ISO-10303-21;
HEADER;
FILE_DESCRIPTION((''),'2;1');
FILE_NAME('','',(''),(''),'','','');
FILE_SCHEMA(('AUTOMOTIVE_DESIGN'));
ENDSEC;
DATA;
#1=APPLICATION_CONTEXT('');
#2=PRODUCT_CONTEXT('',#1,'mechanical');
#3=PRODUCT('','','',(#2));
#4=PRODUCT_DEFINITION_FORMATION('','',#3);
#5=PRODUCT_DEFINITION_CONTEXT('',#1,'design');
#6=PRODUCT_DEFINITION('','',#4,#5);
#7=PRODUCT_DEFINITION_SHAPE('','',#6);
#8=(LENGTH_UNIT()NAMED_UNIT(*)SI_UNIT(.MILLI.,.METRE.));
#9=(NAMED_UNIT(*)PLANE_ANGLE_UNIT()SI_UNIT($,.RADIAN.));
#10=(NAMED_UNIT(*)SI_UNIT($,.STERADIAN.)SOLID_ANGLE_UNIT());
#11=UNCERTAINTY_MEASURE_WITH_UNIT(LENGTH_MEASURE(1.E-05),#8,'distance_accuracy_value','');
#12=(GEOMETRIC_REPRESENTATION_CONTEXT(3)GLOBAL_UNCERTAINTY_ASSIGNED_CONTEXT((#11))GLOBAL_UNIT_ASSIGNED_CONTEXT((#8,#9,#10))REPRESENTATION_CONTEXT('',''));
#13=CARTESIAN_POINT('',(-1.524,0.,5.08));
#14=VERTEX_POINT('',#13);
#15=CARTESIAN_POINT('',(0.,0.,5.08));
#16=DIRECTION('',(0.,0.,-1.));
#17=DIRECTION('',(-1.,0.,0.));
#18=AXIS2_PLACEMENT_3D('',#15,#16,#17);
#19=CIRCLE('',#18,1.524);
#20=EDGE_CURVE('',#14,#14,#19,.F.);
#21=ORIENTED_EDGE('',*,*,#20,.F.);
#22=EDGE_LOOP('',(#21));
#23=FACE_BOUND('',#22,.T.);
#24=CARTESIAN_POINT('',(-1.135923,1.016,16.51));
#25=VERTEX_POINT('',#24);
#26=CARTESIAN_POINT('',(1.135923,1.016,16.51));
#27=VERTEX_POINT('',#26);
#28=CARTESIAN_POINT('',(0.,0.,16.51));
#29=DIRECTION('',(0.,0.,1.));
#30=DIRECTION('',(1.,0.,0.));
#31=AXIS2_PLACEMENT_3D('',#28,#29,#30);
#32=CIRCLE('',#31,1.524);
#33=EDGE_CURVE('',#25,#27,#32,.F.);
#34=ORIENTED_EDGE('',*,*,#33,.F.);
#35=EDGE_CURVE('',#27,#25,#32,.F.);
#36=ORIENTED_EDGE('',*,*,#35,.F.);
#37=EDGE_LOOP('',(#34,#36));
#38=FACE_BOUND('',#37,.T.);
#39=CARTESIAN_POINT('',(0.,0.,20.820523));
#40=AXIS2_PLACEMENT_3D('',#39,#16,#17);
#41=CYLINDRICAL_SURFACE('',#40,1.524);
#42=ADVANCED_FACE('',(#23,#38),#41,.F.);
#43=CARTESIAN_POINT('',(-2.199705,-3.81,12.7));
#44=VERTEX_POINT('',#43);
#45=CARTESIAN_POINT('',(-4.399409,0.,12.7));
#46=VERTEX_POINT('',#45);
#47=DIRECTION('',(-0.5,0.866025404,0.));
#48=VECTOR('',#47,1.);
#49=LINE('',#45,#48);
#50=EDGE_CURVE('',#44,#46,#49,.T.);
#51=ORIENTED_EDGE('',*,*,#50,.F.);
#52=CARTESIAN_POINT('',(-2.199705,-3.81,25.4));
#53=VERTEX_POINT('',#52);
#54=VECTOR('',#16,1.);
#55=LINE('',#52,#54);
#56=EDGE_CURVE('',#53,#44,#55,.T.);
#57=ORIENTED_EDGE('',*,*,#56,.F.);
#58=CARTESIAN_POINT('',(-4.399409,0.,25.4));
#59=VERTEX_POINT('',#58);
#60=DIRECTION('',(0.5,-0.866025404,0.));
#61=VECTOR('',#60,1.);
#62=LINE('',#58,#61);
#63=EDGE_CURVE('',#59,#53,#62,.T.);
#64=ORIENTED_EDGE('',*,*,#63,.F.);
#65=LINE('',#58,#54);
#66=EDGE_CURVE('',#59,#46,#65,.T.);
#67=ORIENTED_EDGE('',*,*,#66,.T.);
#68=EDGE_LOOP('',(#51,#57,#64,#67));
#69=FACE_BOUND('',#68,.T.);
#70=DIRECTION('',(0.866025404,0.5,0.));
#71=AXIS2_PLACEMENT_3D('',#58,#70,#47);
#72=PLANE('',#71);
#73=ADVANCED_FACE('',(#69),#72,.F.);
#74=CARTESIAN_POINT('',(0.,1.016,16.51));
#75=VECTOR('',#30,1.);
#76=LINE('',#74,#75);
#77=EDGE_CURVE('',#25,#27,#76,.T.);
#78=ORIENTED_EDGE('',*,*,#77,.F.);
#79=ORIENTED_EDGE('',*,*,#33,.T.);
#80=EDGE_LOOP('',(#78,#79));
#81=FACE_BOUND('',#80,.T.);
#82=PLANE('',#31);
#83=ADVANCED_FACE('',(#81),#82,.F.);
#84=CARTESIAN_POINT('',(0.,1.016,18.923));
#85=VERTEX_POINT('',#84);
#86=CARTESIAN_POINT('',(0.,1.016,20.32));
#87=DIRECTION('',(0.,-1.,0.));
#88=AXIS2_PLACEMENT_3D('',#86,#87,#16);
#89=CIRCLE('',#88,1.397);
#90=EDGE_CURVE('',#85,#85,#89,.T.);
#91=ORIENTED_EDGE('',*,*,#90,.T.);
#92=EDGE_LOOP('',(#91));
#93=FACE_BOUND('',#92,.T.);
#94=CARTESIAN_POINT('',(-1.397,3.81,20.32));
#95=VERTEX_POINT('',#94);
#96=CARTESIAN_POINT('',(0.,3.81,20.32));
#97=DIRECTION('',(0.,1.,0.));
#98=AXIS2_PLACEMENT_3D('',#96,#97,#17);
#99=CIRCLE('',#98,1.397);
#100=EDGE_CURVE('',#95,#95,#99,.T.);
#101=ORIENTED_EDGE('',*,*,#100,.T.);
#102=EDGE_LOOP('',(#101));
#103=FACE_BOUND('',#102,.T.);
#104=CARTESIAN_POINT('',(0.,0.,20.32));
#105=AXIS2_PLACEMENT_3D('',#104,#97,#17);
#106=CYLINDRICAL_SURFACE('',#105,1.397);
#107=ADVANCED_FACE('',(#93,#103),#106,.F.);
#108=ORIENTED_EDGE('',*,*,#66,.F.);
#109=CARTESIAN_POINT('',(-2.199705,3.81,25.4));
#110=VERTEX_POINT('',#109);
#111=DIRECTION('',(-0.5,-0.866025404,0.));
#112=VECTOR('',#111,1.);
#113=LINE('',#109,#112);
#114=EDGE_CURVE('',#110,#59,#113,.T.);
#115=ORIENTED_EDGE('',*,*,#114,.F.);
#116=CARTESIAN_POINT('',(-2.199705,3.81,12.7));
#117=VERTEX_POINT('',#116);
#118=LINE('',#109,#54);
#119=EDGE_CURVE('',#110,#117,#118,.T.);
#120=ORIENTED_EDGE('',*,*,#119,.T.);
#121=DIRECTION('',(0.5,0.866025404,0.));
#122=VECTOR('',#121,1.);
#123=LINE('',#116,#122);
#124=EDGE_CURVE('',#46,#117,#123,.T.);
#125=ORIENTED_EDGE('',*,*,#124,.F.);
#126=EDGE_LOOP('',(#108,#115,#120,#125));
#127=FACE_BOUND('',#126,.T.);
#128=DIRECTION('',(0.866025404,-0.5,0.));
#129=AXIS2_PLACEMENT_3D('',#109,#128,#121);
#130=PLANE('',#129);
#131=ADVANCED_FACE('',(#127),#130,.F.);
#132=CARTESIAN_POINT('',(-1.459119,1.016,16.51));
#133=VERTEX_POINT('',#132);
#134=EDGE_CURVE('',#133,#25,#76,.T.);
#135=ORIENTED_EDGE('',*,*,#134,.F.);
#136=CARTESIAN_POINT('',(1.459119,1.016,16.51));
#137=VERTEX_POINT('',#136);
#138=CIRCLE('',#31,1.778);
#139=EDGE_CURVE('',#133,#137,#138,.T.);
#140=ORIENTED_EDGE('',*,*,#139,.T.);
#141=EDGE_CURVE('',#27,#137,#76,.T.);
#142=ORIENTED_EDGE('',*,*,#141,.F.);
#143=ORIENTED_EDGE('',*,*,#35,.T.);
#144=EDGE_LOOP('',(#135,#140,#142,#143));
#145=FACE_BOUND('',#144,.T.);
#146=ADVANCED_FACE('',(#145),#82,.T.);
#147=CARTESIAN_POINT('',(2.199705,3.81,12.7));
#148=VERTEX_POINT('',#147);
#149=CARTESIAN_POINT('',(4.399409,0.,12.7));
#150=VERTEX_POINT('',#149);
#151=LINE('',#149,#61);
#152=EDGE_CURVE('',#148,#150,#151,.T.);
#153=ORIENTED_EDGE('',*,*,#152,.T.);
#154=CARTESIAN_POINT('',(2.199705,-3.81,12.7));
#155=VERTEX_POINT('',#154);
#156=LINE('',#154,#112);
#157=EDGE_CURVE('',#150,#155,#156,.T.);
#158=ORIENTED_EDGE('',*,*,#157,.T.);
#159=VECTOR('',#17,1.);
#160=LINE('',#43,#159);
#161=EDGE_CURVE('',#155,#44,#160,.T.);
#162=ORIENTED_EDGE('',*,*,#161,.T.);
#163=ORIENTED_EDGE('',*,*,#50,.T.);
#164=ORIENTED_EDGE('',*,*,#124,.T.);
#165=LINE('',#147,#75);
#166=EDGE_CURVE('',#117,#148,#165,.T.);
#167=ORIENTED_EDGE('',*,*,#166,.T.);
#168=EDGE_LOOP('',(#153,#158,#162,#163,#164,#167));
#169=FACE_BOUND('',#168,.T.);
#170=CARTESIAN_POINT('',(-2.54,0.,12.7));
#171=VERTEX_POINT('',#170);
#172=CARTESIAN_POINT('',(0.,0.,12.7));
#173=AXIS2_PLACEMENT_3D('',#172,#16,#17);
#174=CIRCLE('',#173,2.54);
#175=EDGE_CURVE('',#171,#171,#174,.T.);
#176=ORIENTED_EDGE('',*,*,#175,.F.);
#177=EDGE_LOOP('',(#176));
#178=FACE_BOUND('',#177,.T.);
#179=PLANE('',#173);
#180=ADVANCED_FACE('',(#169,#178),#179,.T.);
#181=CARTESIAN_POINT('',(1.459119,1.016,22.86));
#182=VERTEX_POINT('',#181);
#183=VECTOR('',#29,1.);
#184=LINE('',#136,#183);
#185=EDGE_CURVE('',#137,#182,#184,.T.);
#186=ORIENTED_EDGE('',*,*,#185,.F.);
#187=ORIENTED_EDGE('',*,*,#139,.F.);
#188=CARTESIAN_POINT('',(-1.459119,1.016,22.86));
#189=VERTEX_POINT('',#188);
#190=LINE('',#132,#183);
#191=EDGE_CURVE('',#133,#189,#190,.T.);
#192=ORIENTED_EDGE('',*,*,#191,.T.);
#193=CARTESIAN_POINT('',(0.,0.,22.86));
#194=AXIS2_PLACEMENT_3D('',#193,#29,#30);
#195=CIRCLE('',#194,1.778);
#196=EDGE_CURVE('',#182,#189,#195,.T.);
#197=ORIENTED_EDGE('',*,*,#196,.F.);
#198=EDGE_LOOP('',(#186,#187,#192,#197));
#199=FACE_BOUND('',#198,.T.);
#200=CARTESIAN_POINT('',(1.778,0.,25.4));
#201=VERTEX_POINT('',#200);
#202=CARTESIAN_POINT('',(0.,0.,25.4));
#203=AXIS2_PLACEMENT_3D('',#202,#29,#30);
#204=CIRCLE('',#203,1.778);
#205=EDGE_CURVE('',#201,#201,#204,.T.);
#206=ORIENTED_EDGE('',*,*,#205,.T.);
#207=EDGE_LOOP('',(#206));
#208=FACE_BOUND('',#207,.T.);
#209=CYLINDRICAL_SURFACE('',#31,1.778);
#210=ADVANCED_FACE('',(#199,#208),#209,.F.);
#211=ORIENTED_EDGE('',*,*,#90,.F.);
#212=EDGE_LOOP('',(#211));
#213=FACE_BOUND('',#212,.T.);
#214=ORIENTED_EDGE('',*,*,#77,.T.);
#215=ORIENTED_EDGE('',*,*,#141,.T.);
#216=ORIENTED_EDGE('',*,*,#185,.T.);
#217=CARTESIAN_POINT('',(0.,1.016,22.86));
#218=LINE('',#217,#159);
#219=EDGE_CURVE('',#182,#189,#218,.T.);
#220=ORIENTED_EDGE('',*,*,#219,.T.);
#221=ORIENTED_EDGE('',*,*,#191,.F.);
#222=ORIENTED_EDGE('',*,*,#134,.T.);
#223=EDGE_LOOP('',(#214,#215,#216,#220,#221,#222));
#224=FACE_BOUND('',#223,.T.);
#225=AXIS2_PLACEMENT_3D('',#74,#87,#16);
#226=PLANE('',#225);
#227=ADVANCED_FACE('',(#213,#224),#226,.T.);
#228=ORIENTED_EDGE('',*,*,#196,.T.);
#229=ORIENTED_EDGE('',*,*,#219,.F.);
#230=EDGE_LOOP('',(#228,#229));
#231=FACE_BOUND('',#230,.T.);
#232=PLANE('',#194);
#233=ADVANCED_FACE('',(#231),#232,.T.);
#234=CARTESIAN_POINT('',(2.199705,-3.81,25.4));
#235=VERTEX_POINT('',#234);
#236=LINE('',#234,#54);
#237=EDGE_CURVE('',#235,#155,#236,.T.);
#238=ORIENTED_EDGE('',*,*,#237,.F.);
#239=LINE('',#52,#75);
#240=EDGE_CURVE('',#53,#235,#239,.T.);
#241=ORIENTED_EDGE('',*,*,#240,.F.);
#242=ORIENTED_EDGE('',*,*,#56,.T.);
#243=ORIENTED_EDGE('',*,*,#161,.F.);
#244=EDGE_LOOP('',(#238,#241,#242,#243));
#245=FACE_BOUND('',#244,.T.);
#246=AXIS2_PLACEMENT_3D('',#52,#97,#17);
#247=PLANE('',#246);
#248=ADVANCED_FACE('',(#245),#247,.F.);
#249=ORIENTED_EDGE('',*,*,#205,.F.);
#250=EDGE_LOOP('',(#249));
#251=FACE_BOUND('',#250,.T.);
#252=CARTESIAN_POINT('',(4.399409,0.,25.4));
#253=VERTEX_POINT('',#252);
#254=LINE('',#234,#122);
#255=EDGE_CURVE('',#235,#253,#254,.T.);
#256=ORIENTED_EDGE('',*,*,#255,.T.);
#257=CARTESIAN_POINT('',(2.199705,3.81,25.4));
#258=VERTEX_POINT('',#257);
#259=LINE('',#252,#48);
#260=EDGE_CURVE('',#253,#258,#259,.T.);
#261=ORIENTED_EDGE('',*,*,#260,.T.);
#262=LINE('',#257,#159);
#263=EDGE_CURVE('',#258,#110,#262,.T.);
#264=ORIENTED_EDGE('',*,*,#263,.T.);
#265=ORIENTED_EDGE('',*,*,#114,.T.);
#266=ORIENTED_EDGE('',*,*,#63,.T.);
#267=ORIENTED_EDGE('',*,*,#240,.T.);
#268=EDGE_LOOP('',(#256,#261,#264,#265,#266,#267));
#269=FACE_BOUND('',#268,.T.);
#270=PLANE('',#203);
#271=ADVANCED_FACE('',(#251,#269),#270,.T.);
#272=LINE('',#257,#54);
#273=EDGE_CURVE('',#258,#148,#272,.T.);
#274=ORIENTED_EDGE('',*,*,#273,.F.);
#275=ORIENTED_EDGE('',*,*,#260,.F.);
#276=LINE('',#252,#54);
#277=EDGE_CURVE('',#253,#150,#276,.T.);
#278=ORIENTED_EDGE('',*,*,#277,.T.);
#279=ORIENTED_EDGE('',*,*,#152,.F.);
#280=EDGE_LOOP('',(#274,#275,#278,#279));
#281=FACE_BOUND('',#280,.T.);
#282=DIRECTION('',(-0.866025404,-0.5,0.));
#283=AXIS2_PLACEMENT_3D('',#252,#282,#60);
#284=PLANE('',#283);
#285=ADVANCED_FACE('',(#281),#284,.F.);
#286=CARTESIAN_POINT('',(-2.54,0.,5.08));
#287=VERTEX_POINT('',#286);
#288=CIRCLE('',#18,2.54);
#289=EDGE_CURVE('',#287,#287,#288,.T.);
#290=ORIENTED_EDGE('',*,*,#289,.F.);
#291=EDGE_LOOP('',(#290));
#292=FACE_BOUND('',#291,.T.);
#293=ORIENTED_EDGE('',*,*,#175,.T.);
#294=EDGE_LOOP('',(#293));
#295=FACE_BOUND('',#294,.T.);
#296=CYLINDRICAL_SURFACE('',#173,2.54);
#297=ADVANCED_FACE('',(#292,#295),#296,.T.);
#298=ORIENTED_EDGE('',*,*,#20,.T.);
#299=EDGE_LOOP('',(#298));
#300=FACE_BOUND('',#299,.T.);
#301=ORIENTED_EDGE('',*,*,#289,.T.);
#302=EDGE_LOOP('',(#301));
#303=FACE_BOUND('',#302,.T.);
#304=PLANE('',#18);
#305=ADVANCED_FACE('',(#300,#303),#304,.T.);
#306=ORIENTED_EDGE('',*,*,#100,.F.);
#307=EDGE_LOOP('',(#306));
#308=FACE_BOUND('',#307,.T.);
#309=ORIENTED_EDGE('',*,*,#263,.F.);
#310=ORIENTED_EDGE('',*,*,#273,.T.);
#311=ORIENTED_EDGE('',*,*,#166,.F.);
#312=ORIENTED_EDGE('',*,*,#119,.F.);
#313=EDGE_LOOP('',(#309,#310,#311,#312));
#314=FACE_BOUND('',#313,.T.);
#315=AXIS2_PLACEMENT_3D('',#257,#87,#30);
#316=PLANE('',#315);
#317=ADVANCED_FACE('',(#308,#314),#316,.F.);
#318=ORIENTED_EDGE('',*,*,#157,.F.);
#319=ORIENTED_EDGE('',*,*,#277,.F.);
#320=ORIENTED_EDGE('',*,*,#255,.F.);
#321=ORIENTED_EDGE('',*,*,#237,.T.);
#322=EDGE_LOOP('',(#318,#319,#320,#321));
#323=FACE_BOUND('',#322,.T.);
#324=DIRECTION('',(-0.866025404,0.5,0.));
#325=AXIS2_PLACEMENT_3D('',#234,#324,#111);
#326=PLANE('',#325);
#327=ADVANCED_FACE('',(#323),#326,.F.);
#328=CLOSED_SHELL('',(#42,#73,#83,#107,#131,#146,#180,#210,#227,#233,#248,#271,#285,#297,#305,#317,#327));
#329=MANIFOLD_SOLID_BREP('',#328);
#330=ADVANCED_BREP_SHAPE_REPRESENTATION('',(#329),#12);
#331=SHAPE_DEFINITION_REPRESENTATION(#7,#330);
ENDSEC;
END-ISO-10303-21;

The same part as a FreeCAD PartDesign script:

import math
import FreeCAD as App
import Part
import Sketcher
Q = App.Units.Quantity


def add_polygon(sketch, points):
    """Adds a closed chain of lines whose ends are joined by coincident constraints."""
    first, n = sketch.GeometryCount, len(points)
    for a, b in zip(points, points[1:] + points[:1]):
        sketch.addGeometry(Part.LineSegment(App.Vector(*a, 0), App.Vector(*b, 0)), False)
    for i in range(n):
        sketch.addConstraint(Sketcher.Constraint("Coincident", first + i, 2, first + (i + 1) % n, 1))

doc = App.newDocument("Part")
body = doc.addObject("PartDesign::Body", "Body")

sketch1 = doc.addObject("Sketcher::SketchObject", "Sketch")
body.addObject(sketch1)
sketch1.AttachmentSupport = (doc.XY_Plane, [""])
sketch1.MapMode = "FlatFace"
add_polygon(sketch1, [(2.2, 3.8), (-2.2, 3.8), (-4.4, 0), (-2.2, -3.8), (2.2, -3.8), (4.4, 0)])
sketch1.addConstraint([
    Sketcher.Constraint("Horizontal", 0),
    Sketcher.Constraint("Horizontal", 3),
    Sketcher.Constraint("Symmetric", 0, 2, 3, 2, -1, 1),
    Sketcher.Constraint("Symmetric", 1, 2, 4, 2, -1, 1),
    Sketcher.Constraint("PointOnObject", 1, 2, -1),
    Sketcher.Constraint("Parallel", 2, 5),
    Sketcher.Constraint("Vertical", 0, 2, 2, 2),
    Sketcher.Constraint("Angle", 1, Q("-120 deg")),
    Sketcher.Constraint("DistanceY", 2, 2, 0, 2, Q("0.3 in")),
    Sketcher.Constraint("DistanceX", 0, 2, 0, 1, Q("4.399409 mm")),
])
pad1 = doc.addObject("PartDesign::Pad", "Pad")
body.addObject(pad1)
pad1.Profile = sketch1
pad1.Length = Q("1 in")

sketch2 = doc.addObject("Sketcher::SketchObject", "Sketch001")
body.addObject(sketch2)
sketch2.AttachmentSupport = (doc.XY_Plane, [""])
sketch2.MapMode = "FlatFace"
sketch2.AttachmentOffset = App.Placement(App.Vector(0, 0, 1 * 25.4), App.Rotation())
sketch2.addGeometry([
    Part.LineSegment(App.Vector(1.5, 1, 0), App.Vector(-1.5, 1, 0)),
    Part.ArcOfCircle(Part.Circle(App.Vector(0, 0, 0), App.Vector(0, 0, 1), 1.8), math.radians(145), math.radians(360)),
    Part.ArcOfCircle(Part.Circle(App.Vector(0, 0, 0), App.Vector(0, 0, 1), 1.8), math.radians(0), math.radians(35)),
], False)
sketch2.addConstraint([
    Sketcher.Constraint("Coincident", 0, 2, 1, 1),
    Sketcher.Constraint("Tangent", 1, 2, 2, 1),
    Sketcher.Constraint("Coincident", 2, 2, 0, 1),
    Sketcher.Constraint("Horizontal", 0),
    Sketcher.Constraint("Coincident", 1, 3, -1, 1),
    Sketcher.Constraint("Equal", 1, 2),
    Sketcher.Constraint("PointOnObject", 1, 2, -1),
    Sketcher.Constraint("Radius", 1, Q("0.07 in")),
    Sketcher.Constraint("DistanceY", -1, 1, 0, 2, Q("0.04 in")),
])
pocket1 = doc.addObject("PartDesign::Pocket", "Pocket")
body.addObject(pocket1)
pocket1.Profile = sketch2
pocket1.Length = Q("0.35 in")

sketch3 = doc.addObject("Sketcher::SketchObject", "Sketch002")
body.addObject(sketch3)
sketch3.AttachmentSupport = (doc.XY_Plane, [""])
sketch3.MapMode = "FlatFace"
sketch3.AttachmentOffset = App.Placement(App.Vector(0, 0, 1 * 25.4), App.Rotation())
sketch3.addGeometry(Part.Circle(App.Vector(0, 0, 0), App.Vector(0, 0, 1), 1.8), False)
sketch3.addConstraint([
    Sketcher.Constraint("Coincident", 0, 3, -1, 1),
    Sketcher.Constraint("Diameter", 0, Q("0.14 in")),
])
pocket2 = doc.addObject("PartDesign::Pocket", "Pocket001")
body.addObject(pocket2)
pocket2.Profile = sketch3
pocket2.Length = Q("0.1 in")

sketch4 = doc.addObject("Sketcher::SketchObject", "Sketch003")
body.addObject(sketch4)
sketch4.AttachmentSupport = (doc.XY_Plane, [""])
sketch4.MapMode = "FlatFace"
sketch4.addGeometry(Part.Circle(App.Vector(0, 0, 0), App.Vector(0, 0, 1), 1.5), False)
sketch4.addConstraint([
    Sketcher.Constraint("Coincident", 0, 3, -1, 1),
    Sketcher.Constraint("Diameter", 0, Q("0.12 in")),
])
pocket3 = doc.addObject("PartDesign::Pocket", "Pocket002")
body.addObject(pocket3)
pocket3.Profile = sketch4
pocket3.Length = Q("0.65 in")
pocket3.Reversed = True

sketch5 = doc.addObject("Sketcher::SketchObject", "Sketch004")
body.addObject(sketch5)
sketch5.AttachmentSupport = (doc.XZ_Plane, [""])
sketch5.MapMode = "FlatFace"
sketch5.AttachmentOffset = App.Placement(App.Vector(0, 0, -0.15 * 25.4), App.Rotation())
sketch5.addGeometry(Part.Circle(App.Vector(0, 20.3, 0), App.Vector(0, 0, 1), 1.4), False)
sketch5.addConstraint([
    Sketcher.Constraint("PointOnObject", 0, 3, -2),
    Sketcher.Constraint("Diameter", 0, Q("0.11 in")),
    Sketcher.Constraint("DistanceY", -1, 1, 0, 3, Q("0.8 in")),
])
pocket4 = doc.addObject("PartDesign::Pocket", "Pocket003")
body.addObject(pocket4)
pocket4.Profile = sketch5
pocket4.Length = Q("0.15 in")
pocket4.Reversed = True

sketch6 = doc.addObject("Sketcher::SketchObject", "Sketch005")
body.addObject(sketch6)
sketch6.AttachmentSupport = (doc.XY_Plane, [""])
sketch6.MapMode = "FlatFace"
add_polygon(sketch6, [(7, 6), (7, -6), (-6, -6), (-6, 6)])
sketch6.addConstraint([
    Sketcher.Constraint("Vertical", 0),
    Sketcher.Constraint("Horizontal", 1),
    Sketcher.Constraint("Vertical", 2),
    Sketcher.Constraint("Horizontal", 3),
    Sketcher.Constraint("DistanceX", 1, 2, 1, 1, Q("12.797374 mm")),
    Sketcher.Constraint("DistanceY", 0, 2, 0, 1, Q("12.133936 mm")),
    Sketcher.Constraint("DistanceX", 1, 2, -1, 1, Q("6.005862 mm")),
    Sketcher.Constraint("DistanceY", -1, 1, 2, 2, Q("6.177149 mm")),
])
pocket5 = doc.addObject("PartDesign::Pocket", "Pocket004")
body.addObject(pocket5)
pocket5.Profile = sketch6
pocket5.Length = Q("0.2 in")
pocket5.Reversed = True

sketch7 = doc.addObject("Sketcher::SketchObject", "Sketch006")
body.addObject(sketch7)
sketch7.AttachmentSupport = (doc.XY_Plane, [""])
sketch7.MapMode = "FlatFace"
sketch7.AttachmentOffset = App.Placement(App.Vector(0, 0, 0.2 * 25.4), App.Rotation())
sketch7.addGeometry([
    Part.Circle(App.Vector(0, 0, 0), App.Vector(0, 0, 1), 5.4),
    Part.Circle(App.Vector(0, 0, 0), App.Vector(0, 0, 1), 2.5),
], False)
sketch7.addConstraint([
    Sketcher.Constraint("Coincident", 0, 3, -1, 1),
    Sketcher.Constraint("Coincident", 1, 3, -1, 1),
    Sketcher.Constraint("Diameter", 1, Q("0.2 in")),
    Sketcher.Constraint("Diameter", 0, Q("10.895641 mm")),
])
pocket6 = doc.addObject("PartDesign::Pocket", "Pocket005")
body.addObject(pocket6)
pocket6.Profile = sketch7
pocket6.Length = Q("0.3 in")
pocket6.Reversed = True

doc.recompute()
